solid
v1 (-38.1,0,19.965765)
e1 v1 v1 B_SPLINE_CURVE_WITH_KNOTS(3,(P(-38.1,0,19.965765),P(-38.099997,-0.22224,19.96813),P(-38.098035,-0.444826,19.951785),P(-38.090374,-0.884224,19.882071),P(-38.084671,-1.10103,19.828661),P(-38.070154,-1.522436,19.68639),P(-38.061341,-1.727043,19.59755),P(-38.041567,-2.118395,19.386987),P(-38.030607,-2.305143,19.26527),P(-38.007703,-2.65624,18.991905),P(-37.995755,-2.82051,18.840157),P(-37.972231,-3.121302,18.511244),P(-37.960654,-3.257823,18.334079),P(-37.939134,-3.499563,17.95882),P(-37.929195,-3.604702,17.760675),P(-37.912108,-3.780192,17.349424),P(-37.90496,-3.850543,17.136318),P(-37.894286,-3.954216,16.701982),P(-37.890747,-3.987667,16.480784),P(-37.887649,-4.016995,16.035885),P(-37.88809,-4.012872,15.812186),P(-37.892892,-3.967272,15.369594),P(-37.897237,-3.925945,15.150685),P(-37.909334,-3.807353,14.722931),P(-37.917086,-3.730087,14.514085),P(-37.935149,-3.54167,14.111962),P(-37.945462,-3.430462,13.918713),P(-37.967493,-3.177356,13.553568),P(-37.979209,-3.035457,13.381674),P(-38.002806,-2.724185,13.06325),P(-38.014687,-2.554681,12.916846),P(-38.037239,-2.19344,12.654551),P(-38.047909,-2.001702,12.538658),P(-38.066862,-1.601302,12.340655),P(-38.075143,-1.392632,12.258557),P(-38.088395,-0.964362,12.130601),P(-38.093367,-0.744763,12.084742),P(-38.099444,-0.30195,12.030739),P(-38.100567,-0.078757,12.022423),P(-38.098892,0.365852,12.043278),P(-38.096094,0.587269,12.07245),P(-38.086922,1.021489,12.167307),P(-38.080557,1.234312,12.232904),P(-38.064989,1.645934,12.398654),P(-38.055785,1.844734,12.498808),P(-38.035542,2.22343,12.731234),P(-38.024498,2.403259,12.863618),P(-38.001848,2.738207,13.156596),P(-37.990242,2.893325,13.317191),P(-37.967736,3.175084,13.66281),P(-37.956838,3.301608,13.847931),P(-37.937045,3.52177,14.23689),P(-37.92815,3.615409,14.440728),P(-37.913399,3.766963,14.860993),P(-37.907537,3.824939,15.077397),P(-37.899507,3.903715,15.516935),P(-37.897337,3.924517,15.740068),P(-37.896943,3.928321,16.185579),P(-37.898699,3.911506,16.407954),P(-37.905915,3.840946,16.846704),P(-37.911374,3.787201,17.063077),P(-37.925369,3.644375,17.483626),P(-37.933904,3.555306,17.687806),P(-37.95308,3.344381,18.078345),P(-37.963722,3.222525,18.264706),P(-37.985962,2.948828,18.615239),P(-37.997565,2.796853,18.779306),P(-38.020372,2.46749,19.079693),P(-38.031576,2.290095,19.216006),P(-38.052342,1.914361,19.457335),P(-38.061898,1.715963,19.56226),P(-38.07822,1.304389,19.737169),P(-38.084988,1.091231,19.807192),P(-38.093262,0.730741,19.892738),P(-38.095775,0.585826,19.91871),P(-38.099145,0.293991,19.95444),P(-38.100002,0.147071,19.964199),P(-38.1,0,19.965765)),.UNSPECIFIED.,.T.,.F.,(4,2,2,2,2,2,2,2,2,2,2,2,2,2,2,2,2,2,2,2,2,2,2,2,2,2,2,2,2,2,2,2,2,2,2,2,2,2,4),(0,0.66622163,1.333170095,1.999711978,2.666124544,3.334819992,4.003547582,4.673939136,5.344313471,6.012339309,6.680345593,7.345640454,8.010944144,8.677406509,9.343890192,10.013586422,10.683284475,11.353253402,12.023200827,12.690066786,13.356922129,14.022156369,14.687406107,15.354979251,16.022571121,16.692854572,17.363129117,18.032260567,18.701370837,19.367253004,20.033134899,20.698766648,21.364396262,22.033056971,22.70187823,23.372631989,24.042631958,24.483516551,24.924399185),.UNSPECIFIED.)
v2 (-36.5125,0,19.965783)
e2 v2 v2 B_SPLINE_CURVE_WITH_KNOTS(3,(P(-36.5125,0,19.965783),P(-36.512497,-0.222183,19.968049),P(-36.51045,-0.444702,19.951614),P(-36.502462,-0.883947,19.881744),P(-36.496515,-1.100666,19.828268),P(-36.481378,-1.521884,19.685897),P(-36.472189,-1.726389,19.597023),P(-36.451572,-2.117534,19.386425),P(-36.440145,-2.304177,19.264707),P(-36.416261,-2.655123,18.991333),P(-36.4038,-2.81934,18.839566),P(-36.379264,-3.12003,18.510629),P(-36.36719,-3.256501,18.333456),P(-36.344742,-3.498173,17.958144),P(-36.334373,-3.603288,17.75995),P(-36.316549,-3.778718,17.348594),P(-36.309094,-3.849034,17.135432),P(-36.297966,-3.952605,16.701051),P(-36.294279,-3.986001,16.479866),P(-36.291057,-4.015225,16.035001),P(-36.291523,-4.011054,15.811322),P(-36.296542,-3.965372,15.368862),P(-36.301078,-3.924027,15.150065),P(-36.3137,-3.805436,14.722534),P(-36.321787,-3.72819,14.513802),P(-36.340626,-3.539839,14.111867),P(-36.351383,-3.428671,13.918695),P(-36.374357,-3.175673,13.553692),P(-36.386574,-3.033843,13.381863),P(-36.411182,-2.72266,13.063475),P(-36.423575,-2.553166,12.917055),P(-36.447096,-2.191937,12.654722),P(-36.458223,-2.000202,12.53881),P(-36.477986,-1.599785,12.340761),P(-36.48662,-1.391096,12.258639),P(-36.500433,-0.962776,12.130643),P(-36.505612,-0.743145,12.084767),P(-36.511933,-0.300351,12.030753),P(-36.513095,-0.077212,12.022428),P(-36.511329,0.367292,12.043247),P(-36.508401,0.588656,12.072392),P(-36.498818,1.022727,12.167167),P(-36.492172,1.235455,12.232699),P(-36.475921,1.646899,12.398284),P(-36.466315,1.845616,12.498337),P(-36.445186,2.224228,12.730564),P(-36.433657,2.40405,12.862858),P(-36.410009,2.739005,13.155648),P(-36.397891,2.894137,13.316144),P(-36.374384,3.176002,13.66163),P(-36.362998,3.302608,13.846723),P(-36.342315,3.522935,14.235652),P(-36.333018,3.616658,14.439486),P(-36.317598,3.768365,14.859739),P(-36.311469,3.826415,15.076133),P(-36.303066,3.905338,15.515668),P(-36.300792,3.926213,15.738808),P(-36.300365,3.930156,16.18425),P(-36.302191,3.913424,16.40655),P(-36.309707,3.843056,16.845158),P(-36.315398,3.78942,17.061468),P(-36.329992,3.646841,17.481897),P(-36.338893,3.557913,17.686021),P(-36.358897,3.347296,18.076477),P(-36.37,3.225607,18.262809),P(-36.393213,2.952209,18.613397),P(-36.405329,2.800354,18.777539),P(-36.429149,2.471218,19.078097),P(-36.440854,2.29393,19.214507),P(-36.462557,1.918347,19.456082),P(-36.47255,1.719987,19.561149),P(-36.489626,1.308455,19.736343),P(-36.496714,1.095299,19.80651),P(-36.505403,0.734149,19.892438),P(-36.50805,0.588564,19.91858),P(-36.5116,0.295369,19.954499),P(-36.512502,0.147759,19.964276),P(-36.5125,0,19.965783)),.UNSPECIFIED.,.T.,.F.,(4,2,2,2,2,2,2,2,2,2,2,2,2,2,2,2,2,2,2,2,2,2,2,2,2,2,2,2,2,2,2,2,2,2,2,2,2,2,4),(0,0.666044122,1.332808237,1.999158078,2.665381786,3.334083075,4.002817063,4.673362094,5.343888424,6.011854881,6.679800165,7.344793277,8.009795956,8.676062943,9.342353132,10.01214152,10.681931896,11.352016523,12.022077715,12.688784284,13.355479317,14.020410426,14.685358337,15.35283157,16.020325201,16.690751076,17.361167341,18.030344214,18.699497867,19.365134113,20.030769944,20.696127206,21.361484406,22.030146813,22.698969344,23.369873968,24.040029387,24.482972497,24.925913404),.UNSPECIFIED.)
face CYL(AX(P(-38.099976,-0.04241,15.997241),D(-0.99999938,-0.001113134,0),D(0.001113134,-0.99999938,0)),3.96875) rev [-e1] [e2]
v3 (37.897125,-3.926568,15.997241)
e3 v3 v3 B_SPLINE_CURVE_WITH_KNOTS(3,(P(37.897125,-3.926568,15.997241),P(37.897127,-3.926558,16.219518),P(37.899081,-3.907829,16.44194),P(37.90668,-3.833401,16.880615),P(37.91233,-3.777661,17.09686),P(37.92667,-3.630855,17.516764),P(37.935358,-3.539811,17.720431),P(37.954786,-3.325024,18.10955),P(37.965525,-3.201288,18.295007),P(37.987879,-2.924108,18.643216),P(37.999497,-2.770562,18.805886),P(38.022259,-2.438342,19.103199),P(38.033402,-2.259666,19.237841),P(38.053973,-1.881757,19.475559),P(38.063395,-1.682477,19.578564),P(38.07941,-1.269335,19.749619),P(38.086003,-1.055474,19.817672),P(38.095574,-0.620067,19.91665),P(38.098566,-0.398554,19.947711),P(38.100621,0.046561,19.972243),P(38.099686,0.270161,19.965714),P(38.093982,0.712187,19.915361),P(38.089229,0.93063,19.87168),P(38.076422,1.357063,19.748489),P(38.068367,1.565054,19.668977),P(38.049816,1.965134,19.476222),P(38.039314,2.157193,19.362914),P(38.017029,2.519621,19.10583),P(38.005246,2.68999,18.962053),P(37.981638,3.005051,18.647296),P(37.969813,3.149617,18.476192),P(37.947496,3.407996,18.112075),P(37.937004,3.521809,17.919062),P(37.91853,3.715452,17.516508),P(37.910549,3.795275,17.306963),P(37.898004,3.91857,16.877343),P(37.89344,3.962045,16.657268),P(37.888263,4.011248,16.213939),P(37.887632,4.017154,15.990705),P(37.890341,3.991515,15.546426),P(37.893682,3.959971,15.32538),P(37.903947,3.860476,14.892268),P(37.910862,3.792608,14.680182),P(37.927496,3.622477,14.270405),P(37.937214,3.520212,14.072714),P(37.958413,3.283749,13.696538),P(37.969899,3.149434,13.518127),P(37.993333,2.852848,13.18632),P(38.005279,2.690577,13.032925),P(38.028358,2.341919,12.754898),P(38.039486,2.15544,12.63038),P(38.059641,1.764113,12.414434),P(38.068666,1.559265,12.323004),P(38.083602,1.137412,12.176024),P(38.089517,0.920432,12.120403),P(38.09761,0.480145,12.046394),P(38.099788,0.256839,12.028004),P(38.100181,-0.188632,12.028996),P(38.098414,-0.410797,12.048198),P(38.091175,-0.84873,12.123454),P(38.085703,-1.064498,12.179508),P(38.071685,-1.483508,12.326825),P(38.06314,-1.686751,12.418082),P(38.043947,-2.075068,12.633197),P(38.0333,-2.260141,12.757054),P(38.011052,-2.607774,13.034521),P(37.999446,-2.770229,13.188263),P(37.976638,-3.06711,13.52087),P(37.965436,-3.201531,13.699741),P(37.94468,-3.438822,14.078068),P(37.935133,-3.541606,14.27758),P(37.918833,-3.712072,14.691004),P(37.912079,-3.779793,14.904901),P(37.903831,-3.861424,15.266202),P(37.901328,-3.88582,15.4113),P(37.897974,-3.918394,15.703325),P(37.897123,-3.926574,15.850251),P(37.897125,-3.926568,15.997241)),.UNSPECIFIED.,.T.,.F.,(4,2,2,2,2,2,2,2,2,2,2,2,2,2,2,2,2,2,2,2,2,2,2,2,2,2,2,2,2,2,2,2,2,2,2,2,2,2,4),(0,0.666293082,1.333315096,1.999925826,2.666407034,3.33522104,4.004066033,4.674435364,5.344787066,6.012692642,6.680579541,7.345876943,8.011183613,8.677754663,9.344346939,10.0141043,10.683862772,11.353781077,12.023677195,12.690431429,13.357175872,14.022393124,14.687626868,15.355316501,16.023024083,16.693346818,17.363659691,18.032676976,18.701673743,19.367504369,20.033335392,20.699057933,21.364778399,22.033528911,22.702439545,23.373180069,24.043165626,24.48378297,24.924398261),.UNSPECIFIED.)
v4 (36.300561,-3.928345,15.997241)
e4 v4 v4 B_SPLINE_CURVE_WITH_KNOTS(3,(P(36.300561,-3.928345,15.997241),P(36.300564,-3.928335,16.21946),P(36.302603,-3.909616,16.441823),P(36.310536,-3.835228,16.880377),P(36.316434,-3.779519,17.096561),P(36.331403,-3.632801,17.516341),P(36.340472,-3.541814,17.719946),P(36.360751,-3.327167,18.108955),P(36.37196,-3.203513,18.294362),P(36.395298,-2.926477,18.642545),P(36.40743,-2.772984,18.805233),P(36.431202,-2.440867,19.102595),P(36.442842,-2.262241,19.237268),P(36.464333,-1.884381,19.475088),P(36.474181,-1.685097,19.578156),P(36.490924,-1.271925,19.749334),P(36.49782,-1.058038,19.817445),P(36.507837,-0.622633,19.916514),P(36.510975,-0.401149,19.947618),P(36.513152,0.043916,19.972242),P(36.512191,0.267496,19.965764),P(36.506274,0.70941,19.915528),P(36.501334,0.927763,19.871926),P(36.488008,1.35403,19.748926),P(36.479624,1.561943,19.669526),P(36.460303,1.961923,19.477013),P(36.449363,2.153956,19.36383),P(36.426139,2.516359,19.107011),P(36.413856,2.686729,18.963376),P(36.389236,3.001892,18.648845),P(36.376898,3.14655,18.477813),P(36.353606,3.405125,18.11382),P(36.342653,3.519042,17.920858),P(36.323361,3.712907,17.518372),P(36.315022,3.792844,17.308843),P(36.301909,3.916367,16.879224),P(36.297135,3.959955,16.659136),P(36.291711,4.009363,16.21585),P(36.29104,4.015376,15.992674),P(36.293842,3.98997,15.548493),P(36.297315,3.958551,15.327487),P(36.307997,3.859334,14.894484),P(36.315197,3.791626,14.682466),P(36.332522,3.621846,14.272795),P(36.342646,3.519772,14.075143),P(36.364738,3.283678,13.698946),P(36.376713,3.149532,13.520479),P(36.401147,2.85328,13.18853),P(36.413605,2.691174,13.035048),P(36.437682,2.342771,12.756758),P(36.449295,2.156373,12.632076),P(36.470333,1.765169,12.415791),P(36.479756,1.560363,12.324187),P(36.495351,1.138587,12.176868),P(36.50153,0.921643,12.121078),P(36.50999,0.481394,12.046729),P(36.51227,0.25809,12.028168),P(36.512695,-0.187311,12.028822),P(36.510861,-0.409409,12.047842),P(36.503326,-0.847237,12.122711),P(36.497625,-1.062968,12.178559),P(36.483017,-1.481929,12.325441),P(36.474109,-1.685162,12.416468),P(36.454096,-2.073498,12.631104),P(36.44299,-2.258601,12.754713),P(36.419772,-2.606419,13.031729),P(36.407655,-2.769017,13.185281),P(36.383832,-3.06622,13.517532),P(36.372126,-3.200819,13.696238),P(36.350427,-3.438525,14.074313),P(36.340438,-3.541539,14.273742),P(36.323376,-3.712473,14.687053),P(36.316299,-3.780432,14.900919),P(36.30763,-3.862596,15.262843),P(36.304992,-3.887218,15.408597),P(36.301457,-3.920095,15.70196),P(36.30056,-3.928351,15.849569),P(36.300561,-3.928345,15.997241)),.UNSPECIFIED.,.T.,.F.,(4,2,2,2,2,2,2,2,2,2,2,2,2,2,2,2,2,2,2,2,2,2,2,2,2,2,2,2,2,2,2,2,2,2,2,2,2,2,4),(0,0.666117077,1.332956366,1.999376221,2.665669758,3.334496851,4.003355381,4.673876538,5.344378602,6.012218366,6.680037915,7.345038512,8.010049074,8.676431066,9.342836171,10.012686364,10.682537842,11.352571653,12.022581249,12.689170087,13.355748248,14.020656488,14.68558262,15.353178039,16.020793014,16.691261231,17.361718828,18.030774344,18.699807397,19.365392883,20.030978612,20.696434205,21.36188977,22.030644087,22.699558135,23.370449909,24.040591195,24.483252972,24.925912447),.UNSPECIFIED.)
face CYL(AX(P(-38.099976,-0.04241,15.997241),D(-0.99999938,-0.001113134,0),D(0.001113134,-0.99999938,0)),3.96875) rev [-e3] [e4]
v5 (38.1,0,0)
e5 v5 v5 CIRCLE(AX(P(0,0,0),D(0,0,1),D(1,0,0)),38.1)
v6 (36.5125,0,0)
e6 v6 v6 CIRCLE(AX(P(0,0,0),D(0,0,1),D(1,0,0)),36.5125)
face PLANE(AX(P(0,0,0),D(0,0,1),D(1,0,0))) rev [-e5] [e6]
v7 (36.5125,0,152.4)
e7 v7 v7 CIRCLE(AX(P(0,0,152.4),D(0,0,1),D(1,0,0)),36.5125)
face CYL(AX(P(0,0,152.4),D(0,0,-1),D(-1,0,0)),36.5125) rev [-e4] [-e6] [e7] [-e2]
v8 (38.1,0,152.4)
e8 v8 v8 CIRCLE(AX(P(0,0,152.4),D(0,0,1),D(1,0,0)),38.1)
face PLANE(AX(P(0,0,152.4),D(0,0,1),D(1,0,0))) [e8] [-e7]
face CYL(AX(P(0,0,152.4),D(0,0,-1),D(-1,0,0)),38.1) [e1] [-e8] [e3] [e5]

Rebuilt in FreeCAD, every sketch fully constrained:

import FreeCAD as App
import Part
import Sketcher
Q = App.Units.Quantity

doc = App.newDocument("Part")
params = doc.addObject("Spreadsheet::Sheet", "Params")
for row, (alias, value) in enumerate([
    ("sketch1_diameter", "3 in"),
    ("sketch1_diameter2", "2.875 in"),
    ("pad1_length", "6 in"),
    ("sketch2_diameter", "0.3125 in"),
    ("hole_diameter", "0.3125 in"),
], start=1):
    params.set(f"A{row}", alias)
    params.set(f"B{row}", "=" + value)
    params.setAlias(f"B{row}", alias)

body = doc.addObject("PartDesign::Body", "Body")

# Sketch on XY plane
sketch1 = doc.addObject("Sketcher::SketchObject", "Sketch")
body.addObject(sketch1)
sketch1.AttachmentSupport = (doc.XY_Plane, [""])
sketch1.MapMode = "FlatFace"
sketch1.addGeometry(Part.Circle(App.Vector(0, 0, 0), App.Vector(0, 0, 1), 38.1), False)
sketch1.addGeometry(Part.Circle(App.Vector(0, 0, 0), App.Vector(0, 0, 1), 36.5125), False)
sketch1.addConstraint(Sketcher.Constraint("Coincident", 0, 3, -1, 1))
sketch1.addConstraint(Sketcher.Constraint("Coincident", 1, 3, -1, 1))
sketch1.addConstraint(Sketcher.Constraint("Diameter", 0, Q("3 in")))
sketch1.addConstraint(Sketcher.Constraint("Diameter", 1, Q("2.875 in")))
sketch1.setExpression("Constraints[2]", "Params.sketch1_diameter")
sketch1.setExpression("Constraints[3]", "Params.sketch1_diameter2")
pad1 = doc.addObject("PartDesign::Pad", "Pad")
body.addObject(pad1)
pad1.Profile = sketch1
pad1.setExpression("Length", "Params.pad1_length")

# Sketch on an angled plane
sketch2 = doc.addObject("Sketcher::SketchObject", "Sketch001")
body.addObject(sketch2)
sketch2.Placement = App.Placement(App.Vector(-38.099976, -0.04241, 0), App.Rotation(App.Vector(0.001113134, -0.99999938, 0), App.Vector(0, 0, 0.999999999), App.Vector(-0.99999938, -0.001113134, 0), "ZXY"))
sketch2.addGeometry(Part.Circle(App.Vector(0, 15.997241, 0), App.Vector(0, 0, 1), 3.96875), False)
sketch2.addConstraint(Sketcher.Constraint("PointOnObject", 0, 3, -2))
sketch2.addConstraint(Sketcher.Constraint("Diameter", 0, Q("0.3125 in")))
sketch2.addConstraint(Sketcher.Constraint("DistanceY", -1, 1, 0, 3, Q("15.997241 mm")))
sketch2.setExpression("Constraints[1]", "Params.sketch2_diameter")
doc.recompute()
hole = doc.addObject("PartDesign::Hole", "Hole")
body.addObject(hole)
hole.Profile = sketch2
hole.ThreadType = "None"
hole.setExpression("Diameter", "Params.hole_diameter")
hole.DepthType = "ThroughAll"

doc.recompute()
